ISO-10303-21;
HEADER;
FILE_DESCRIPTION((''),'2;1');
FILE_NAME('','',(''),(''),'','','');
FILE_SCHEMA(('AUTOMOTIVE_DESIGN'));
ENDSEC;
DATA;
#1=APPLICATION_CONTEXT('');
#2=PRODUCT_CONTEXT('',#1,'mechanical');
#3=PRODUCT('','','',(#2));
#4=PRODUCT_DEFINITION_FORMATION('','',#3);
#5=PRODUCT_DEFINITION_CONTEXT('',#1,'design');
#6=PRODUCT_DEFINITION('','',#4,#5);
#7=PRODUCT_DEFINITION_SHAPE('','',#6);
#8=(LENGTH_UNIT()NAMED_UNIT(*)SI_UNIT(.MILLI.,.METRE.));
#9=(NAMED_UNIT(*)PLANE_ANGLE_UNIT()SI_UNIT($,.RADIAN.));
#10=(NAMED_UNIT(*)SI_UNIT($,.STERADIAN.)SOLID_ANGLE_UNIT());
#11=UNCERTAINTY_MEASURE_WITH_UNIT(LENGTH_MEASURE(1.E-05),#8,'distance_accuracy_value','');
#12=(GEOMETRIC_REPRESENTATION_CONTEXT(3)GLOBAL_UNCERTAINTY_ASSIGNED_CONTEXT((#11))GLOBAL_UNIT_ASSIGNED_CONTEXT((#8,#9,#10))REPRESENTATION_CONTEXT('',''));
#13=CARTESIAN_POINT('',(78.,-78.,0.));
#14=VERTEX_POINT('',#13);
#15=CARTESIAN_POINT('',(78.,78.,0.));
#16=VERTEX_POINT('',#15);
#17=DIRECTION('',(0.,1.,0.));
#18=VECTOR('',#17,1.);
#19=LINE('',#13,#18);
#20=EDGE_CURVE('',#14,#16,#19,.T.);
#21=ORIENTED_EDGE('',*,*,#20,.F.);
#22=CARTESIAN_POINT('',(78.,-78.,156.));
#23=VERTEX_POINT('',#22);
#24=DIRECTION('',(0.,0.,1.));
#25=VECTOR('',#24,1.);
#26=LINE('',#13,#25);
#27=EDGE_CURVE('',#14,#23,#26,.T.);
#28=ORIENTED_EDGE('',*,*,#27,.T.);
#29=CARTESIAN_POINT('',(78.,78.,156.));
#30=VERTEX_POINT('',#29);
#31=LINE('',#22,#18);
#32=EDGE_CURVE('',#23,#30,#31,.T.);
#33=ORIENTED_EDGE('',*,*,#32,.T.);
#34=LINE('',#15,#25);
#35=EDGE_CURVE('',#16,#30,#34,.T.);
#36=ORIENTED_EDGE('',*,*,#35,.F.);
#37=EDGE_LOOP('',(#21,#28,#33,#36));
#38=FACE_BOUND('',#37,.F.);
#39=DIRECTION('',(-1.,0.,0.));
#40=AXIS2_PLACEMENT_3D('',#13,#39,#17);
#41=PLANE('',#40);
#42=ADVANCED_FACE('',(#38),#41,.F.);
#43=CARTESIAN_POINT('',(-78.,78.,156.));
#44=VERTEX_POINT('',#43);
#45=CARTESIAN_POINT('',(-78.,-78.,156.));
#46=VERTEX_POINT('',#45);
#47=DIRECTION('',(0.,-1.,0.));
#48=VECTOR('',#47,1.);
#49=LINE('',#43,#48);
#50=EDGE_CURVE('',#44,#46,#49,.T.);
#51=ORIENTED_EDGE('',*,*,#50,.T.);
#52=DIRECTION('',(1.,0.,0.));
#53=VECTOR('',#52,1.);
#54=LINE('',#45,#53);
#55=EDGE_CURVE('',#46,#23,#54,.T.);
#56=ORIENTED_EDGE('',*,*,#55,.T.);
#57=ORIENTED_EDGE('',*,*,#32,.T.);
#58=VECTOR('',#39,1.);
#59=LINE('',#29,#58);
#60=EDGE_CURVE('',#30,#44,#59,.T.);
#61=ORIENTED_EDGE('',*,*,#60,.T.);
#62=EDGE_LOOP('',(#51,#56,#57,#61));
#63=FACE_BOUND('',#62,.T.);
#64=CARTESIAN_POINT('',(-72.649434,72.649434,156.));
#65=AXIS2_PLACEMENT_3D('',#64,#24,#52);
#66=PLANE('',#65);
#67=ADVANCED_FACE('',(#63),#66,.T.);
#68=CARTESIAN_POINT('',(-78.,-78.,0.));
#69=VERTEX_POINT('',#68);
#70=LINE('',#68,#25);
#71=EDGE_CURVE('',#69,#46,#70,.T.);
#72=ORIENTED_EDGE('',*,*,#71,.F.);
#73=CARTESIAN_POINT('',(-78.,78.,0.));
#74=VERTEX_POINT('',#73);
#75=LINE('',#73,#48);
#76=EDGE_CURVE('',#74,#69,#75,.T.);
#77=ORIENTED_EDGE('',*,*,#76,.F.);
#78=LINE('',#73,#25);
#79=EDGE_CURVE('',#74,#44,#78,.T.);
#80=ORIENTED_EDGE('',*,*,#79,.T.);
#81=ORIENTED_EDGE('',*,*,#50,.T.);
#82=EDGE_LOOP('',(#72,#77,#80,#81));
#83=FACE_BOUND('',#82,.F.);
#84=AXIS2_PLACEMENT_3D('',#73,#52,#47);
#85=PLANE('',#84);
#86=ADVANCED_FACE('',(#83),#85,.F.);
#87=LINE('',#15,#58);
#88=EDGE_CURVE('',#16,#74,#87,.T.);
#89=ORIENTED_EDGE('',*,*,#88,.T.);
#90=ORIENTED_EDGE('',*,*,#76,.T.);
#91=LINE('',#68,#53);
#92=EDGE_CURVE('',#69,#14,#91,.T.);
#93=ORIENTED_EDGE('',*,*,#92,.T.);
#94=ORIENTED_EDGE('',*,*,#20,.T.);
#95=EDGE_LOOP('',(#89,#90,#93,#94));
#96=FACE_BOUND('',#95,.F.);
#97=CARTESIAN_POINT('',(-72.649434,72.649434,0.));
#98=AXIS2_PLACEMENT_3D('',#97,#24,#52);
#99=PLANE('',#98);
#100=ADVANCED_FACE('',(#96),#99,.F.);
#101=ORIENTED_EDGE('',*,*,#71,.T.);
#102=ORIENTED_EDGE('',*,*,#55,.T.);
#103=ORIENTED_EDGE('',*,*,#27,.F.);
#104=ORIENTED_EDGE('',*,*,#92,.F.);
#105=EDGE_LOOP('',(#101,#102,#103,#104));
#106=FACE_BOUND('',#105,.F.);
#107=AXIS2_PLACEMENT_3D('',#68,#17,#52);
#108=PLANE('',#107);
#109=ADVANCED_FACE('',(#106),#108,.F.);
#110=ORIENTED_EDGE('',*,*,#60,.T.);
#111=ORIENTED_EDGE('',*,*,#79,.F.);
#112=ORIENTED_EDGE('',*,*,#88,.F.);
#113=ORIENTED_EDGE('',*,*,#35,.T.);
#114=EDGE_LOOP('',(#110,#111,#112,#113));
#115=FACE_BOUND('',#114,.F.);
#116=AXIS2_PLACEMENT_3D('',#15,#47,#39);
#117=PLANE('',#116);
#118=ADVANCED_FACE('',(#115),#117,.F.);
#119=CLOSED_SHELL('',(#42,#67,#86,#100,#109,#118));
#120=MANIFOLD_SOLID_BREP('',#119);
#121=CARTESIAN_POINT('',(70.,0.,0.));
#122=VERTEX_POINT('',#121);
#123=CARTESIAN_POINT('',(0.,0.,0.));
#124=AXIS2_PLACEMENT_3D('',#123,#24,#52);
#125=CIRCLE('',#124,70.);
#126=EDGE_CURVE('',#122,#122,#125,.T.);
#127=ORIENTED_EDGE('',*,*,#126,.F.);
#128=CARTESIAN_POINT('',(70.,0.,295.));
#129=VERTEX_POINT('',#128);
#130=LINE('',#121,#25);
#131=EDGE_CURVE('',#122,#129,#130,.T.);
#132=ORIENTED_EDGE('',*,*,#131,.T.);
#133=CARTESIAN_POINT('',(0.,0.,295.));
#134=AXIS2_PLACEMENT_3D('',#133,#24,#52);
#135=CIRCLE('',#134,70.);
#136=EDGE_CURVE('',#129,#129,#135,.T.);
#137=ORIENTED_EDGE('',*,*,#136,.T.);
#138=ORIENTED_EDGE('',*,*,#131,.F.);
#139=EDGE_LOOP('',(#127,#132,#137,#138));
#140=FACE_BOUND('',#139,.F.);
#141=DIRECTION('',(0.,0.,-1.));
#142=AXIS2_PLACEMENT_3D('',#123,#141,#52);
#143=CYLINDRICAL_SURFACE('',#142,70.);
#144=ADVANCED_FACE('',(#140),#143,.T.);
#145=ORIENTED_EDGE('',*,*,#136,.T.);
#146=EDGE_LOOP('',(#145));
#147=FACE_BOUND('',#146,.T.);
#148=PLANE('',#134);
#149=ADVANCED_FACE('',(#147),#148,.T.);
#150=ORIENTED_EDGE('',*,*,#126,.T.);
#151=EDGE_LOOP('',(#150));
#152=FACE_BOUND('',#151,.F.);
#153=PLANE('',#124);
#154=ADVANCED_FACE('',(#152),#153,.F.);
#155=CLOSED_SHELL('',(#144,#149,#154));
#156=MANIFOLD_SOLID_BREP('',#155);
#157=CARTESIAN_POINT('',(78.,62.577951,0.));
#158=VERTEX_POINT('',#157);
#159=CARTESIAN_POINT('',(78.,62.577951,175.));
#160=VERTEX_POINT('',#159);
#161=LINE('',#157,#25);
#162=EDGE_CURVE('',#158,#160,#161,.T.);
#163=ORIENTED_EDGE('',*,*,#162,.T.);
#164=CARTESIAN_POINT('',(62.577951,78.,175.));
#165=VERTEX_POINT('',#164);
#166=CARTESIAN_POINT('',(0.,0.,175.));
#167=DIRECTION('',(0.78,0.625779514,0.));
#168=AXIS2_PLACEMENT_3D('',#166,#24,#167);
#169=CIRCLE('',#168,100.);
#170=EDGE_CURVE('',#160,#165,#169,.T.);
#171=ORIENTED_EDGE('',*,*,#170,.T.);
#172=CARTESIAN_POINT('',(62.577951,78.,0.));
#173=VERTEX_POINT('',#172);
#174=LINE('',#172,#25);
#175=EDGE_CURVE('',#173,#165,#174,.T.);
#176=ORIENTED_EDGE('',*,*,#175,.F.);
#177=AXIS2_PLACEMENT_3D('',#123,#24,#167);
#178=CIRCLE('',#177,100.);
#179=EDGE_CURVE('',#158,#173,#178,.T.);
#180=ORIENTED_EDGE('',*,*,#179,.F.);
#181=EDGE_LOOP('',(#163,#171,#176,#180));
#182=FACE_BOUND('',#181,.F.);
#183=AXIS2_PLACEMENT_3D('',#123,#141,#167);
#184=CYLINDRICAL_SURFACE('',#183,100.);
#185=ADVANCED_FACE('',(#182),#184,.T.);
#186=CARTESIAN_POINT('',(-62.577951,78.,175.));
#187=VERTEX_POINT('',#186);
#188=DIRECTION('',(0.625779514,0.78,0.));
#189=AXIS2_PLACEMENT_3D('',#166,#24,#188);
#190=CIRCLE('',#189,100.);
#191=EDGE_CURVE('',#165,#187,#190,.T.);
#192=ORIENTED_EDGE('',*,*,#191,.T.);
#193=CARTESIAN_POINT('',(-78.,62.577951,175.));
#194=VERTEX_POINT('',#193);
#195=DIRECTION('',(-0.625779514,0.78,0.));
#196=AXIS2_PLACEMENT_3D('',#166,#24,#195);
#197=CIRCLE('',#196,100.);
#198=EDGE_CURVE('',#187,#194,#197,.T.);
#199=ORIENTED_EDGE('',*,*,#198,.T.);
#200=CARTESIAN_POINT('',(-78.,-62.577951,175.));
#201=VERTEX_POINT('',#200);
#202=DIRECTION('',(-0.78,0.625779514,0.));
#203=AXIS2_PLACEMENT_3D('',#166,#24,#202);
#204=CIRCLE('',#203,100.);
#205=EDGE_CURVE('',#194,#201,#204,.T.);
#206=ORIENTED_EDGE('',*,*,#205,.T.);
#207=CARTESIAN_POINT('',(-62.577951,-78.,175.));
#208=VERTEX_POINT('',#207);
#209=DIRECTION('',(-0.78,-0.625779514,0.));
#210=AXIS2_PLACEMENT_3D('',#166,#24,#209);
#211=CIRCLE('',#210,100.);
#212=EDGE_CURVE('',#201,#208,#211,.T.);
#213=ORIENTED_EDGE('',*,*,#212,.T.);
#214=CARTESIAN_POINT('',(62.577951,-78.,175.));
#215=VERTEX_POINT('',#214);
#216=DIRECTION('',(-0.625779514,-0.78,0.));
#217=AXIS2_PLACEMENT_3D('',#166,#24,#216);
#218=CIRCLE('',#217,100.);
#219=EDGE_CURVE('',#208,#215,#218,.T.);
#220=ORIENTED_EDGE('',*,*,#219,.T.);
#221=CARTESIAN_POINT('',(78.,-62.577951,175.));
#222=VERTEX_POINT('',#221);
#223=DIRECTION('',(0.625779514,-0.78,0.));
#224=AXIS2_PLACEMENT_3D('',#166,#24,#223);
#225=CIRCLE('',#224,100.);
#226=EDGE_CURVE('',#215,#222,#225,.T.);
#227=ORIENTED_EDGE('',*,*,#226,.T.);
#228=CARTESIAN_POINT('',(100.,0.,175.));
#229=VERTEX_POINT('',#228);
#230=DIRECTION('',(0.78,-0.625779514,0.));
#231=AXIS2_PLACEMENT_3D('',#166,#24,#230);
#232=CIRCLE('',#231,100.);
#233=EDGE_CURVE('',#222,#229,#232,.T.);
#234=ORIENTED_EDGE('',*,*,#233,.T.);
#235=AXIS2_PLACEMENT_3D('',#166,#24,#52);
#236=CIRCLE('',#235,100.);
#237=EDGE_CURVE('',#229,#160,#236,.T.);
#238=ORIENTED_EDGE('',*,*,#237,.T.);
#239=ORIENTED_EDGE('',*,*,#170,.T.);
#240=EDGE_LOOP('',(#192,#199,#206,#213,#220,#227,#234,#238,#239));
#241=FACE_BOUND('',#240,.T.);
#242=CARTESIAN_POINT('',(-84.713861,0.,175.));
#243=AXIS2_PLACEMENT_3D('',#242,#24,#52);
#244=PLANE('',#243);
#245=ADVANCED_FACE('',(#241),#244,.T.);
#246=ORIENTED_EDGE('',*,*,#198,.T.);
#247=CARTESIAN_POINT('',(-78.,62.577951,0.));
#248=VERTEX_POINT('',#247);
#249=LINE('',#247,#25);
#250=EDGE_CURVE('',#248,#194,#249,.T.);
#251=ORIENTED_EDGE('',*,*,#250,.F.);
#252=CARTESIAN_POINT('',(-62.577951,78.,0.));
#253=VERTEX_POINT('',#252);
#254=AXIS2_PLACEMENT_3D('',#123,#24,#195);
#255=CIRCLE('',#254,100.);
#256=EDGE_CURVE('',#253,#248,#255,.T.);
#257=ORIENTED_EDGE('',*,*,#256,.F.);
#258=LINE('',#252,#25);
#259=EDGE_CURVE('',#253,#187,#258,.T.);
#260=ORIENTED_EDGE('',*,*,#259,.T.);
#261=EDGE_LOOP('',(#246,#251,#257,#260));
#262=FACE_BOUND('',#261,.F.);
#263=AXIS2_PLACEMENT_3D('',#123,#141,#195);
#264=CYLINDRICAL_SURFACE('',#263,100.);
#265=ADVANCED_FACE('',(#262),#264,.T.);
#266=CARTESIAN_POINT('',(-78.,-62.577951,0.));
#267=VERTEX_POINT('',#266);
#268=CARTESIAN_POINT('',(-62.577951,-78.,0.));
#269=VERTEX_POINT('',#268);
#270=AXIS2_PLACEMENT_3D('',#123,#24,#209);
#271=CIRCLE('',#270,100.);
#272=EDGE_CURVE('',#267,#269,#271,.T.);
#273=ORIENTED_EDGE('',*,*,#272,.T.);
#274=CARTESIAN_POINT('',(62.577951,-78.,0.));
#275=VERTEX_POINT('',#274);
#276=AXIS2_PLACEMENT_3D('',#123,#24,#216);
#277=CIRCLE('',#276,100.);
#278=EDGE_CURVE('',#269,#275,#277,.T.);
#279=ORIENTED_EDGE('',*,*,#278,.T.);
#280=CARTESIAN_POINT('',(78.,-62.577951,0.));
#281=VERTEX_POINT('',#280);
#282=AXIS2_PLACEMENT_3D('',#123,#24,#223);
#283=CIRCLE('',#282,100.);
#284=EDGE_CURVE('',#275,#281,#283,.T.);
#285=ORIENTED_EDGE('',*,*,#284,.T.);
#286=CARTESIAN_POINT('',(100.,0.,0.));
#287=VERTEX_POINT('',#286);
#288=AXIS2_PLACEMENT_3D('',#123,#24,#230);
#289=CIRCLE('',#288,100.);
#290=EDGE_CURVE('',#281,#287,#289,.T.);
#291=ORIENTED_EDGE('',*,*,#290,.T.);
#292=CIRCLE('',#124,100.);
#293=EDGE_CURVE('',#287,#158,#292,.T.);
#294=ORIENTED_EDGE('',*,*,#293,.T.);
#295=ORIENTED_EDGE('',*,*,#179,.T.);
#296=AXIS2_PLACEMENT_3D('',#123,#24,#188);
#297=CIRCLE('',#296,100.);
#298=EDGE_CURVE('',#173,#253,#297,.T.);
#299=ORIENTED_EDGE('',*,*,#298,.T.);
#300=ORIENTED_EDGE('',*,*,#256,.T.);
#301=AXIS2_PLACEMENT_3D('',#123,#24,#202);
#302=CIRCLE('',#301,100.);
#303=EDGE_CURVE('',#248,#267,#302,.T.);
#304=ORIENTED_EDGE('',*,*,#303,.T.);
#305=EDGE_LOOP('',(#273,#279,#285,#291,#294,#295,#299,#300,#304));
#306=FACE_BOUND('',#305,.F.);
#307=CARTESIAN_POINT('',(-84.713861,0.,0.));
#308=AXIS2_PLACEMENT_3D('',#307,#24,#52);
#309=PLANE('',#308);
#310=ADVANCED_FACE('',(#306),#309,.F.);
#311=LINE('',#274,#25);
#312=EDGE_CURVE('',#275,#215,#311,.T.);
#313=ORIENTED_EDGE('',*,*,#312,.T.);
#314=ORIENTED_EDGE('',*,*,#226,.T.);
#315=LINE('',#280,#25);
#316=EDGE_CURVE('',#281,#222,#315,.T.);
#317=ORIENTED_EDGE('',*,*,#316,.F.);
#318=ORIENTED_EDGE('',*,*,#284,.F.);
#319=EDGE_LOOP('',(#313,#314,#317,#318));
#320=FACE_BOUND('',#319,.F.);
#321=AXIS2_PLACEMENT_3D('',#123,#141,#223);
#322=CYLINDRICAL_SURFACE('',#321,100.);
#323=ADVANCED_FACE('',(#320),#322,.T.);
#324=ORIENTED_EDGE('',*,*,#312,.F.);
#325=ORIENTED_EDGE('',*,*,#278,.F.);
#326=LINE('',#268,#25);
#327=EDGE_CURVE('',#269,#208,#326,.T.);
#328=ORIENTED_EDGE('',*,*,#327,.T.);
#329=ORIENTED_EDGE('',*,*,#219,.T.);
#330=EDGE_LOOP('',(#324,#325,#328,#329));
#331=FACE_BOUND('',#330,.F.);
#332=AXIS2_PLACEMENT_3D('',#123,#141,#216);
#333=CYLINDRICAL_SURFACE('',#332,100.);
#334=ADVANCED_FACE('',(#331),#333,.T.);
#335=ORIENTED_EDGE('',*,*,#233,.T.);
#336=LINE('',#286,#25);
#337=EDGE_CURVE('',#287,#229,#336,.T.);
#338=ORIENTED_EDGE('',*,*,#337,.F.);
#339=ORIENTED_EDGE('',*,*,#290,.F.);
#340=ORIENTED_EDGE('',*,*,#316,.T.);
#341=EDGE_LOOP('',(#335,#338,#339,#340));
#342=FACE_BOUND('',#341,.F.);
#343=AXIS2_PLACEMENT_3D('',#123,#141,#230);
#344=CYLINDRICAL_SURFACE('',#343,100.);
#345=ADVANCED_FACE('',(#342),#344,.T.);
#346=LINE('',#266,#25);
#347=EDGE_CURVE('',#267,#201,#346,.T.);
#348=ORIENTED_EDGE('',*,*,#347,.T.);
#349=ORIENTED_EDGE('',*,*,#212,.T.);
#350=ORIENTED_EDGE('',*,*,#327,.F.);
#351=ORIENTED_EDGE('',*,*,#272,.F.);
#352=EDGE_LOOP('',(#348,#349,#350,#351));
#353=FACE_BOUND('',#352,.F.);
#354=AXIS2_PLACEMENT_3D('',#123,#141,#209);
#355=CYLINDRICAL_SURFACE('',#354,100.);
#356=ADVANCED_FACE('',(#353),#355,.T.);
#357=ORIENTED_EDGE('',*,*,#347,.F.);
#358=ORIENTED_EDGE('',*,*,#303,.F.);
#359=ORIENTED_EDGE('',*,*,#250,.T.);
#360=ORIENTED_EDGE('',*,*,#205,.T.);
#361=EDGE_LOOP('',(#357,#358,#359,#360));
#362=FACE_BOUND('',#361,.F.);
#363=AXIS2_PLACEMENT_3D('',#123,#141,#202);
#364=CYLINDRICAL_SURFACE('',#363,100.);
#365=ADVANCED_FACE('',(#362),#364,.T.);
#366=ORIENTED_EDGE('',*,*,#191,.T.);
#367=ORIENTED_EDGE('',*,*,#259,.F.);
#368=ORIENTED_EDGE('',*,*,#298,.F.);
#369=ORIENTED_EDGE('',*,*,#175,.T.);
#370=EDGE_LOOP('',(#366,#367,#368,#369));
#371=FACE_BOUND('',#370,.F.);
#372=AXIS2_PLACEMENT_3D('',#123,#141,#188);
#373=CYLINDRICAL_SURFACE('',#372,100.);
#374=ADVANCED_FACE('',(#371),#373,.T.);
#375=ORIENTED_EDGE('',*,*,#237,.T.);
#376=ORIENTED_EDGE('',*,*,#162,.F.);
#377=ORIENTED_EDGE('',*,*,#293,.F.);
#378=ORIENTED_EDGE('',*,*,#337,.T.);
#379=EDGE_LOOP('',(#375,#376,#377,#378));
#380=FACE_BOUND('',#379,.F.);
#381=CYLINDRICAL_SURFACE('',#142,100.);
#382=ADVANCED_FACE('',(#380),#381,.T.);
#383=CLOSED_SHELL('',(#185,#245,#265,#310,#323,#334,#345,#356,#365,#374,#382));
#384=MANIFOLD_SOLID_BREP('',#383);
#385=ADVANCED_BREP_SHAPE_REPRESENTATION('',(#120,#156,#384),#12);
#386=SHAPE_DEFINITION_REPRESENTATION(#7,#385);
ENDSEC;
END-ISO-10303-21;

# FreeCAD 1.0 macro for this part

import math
import FreeCAD as App
import Part
import Sketcher
from FreeCAD import Vector

doc = App.newDocument("Part")
body = doc.addObject("PartDesign::Body", "Body")

# Sketch on XY plane
sketch1 = body.newObject("Sketcher::SketchObject", "Sketch")
sketch1.AttachmentSupport = (doc.getObject("XY_Plane"), [""])
sketch1.MapMode = "FlatFace"
sketch1.addGeometry([
    Part.LineSegment(Vector(-78, 78, 0), Vector(-78, -78, 0)),
    Part.LineSegment(Vector(-78, -78, 0), Vector(78, -78, 0)),
    Part.LineSegment(Vector(78, -78, 0), Vector(78, 78, 0)),
    Part.LineSegment(Vector(78, 78, 0), Vector(-78, 78, 0)),
], False)
sketch1.addConstraint([
    Sketcher.Constraint("Coincident", 0, 2, 1, 1),
    Sketcher.Constraint("Coincident", 1, 2, 2, 1),
    Sketcher.Constraint("Coincident", 2, 2, 3, 1),
    Sketcher.Constraint("Coincident", 3, 2, 0, 1),
    Sketcher.Constraint("Vertical", 0),
    Sketcher.Constraint("Horizontal", 1),
    Sketcher.Constraint("Vertical", 2),
    Sketcher.Constraint("Horizontal", 3),
    Sketcher.Constraint("Symmetric", 0, 2, 2, 2, -1, 1),
    Sketcher.Constraint("Equal", 3, 0),
    Sketcher.Constraint("DistanceX", 1, 1, 1, 2, 156.0),
])
pad1 = body.newObject("PartDesign::Pad", "Pad")
pad1.Profile = sketch1
pad1.Length = 156
body2 = doc.addObject("PartDesign::Body", "Body001")

# Sketch on XY plane
sketch2 = body2.newObject("Sketcher::SketchObject", "Sketch001")
sketch2.AttachmentSupport = (doc.getObject("XY_Plane001"), [""])
sketch2.MapMode = "FlatFace"
sketch2.addGeometry([
    Part.ArcOfCircle(Part.Circle(Vector(0, 0, 0), Vector(0, 0, 1), 100), math.radians(141), math.radians(219)),  # 0
    Part.ArcOfCircle(Part.Circle(Vector(0, 0, 0), Vector(0, 0, 1), 100), math.radians(-141.26), math.radians(-128.74)),  # 1
    Part.ArcOfCircle(Part.Circle(Vector(0, 0, 0), Vector(0, 0, 1), 100), math.radians(-129), math.radians(-51)),  # 2
    Part.ArcOfCircle(Part.Circle(Vector(0, 0, 0), Vector(0, 0, 1), 100), math.radians(-51.26), math.radians(-38.74)),  # 3
    Part.ArcOfCircle(Part.Circle(Vector(0, 0, 0), Vector(0, 0, 1), 100), math.radians(-39), math.radians(0)),  # 4
    Part.ArcOfCircle(Part.Circle(Vector(0, 0, 0), Vector(0, 0, 1), 100), math.radians(0), math.radians(39)),  # 5
    Part.ArcOfCircle(Part.Circle(Vector(0, 0, 0), Vector(0, 0, 1), 100), math.radians(38.74), math.radians(51.26)),  # 6
    Part.ArcOfCircle(Part.Circle(Vector(0, 0, 0), Vector(0, 0, 1), 100), math.radians(51), math.radians(129)),  # 7
    Part.ArcOfCircle(Part.Circle(Vector(0, 0, 0), Vector(0, 0, 1), 100), math.radians(128.74), math.radians(141.26)),  # 8
], False)
sketch2.addConstraint([
    Sketcher.Constraint("Tangent", 0, 2, 1, 1),
    Sketcher.Constraint("Tangent", 1, 2, 2, 1),
    Sketcher.Constraint("Tangent", 2, 2, 3, 1),
    Sketcher.Constraint("Tangent", 3, 2, 4, 1),
    Sketcher.Constraint("Tangent", 4, 2, 5, 1),
    Sketcher.Constraint("Tangent", 5, 2, 6, 1),
    Sketcher.Constraint("Tangent", 6, 2, 7, 1),
    Sketcher.Constraint("Tangent", 7, 2, 8, 1),
    Sketcher.Constraint("Tangent", 8, 2, 0, 1),
    Sketcher.Constraint("Coincident", 0, 3, -1, 1),
    Sketcher.Constraint("Coincident", 2, 3, -1, 1),
    Sketcher.Constraint("Coincident", 4, 3, -1, 1),
    Sketcher.Constraint("Coincident", 6, 3, -1, 1),
    Sketcher.Constraint("PointOnObject", 4, 2, -1),
    Sketcher.Constraint("Horizontal", 1, 2, 2, 2),
    Sketcher.Constraint("Horizontal", 0, 2, 3, 2),
    Sketcher.Constraint("Horizontal", 6, 2, 7, 2),
    Sketcher.Constraint("Horizontal", 5, 2, 8, 2),
    Sketcher.Constraint("Vertical", 3, 2, 5, 2),
    Sketcher.Constraint("Vertical", 2, 2, 6, 2),
    Sketcher.Constraint("Radius", 0, 100.0),
    Sketcher.Constraint("DistanceX", 0, 2, -1, 1, 78.0),
    Sketcher.Constraint("DistanceY", 1, 2, -1, 1, 78.0),
])
pad2 = body2.newObject("PartDesign::Pad", "Pad001")
pad2.Profile = sketch2
pad2.Length = 175
body3 = doc.addObject("PartDesign::Body", "Body002")

# Sketch on XY plane
sketch3 = body3.newObject("Sketcher::SketchObject", "Sketch002")
sketch3.AttachmentSupport = (doc.getObject("XY_Plane002"), [""])
sketch3.MapMode = "FlatFace"
sketch3.addGeometry(Part.Circle(Vector(0, 0, 0), Vector(0, 0, 1), 70), False)
sketch3.addConstraint([
    Sketcher.Constraint("Coincident", 0, 3, -1, 1),
    Sketcher.Constraint("Diameter", 0, 140.0),
])
pad3 = body3.newObject("PartDesign::Pad", "Pad002")
pad3.Profile = sketch3
pad3.Length = 295

doc.recompute()
